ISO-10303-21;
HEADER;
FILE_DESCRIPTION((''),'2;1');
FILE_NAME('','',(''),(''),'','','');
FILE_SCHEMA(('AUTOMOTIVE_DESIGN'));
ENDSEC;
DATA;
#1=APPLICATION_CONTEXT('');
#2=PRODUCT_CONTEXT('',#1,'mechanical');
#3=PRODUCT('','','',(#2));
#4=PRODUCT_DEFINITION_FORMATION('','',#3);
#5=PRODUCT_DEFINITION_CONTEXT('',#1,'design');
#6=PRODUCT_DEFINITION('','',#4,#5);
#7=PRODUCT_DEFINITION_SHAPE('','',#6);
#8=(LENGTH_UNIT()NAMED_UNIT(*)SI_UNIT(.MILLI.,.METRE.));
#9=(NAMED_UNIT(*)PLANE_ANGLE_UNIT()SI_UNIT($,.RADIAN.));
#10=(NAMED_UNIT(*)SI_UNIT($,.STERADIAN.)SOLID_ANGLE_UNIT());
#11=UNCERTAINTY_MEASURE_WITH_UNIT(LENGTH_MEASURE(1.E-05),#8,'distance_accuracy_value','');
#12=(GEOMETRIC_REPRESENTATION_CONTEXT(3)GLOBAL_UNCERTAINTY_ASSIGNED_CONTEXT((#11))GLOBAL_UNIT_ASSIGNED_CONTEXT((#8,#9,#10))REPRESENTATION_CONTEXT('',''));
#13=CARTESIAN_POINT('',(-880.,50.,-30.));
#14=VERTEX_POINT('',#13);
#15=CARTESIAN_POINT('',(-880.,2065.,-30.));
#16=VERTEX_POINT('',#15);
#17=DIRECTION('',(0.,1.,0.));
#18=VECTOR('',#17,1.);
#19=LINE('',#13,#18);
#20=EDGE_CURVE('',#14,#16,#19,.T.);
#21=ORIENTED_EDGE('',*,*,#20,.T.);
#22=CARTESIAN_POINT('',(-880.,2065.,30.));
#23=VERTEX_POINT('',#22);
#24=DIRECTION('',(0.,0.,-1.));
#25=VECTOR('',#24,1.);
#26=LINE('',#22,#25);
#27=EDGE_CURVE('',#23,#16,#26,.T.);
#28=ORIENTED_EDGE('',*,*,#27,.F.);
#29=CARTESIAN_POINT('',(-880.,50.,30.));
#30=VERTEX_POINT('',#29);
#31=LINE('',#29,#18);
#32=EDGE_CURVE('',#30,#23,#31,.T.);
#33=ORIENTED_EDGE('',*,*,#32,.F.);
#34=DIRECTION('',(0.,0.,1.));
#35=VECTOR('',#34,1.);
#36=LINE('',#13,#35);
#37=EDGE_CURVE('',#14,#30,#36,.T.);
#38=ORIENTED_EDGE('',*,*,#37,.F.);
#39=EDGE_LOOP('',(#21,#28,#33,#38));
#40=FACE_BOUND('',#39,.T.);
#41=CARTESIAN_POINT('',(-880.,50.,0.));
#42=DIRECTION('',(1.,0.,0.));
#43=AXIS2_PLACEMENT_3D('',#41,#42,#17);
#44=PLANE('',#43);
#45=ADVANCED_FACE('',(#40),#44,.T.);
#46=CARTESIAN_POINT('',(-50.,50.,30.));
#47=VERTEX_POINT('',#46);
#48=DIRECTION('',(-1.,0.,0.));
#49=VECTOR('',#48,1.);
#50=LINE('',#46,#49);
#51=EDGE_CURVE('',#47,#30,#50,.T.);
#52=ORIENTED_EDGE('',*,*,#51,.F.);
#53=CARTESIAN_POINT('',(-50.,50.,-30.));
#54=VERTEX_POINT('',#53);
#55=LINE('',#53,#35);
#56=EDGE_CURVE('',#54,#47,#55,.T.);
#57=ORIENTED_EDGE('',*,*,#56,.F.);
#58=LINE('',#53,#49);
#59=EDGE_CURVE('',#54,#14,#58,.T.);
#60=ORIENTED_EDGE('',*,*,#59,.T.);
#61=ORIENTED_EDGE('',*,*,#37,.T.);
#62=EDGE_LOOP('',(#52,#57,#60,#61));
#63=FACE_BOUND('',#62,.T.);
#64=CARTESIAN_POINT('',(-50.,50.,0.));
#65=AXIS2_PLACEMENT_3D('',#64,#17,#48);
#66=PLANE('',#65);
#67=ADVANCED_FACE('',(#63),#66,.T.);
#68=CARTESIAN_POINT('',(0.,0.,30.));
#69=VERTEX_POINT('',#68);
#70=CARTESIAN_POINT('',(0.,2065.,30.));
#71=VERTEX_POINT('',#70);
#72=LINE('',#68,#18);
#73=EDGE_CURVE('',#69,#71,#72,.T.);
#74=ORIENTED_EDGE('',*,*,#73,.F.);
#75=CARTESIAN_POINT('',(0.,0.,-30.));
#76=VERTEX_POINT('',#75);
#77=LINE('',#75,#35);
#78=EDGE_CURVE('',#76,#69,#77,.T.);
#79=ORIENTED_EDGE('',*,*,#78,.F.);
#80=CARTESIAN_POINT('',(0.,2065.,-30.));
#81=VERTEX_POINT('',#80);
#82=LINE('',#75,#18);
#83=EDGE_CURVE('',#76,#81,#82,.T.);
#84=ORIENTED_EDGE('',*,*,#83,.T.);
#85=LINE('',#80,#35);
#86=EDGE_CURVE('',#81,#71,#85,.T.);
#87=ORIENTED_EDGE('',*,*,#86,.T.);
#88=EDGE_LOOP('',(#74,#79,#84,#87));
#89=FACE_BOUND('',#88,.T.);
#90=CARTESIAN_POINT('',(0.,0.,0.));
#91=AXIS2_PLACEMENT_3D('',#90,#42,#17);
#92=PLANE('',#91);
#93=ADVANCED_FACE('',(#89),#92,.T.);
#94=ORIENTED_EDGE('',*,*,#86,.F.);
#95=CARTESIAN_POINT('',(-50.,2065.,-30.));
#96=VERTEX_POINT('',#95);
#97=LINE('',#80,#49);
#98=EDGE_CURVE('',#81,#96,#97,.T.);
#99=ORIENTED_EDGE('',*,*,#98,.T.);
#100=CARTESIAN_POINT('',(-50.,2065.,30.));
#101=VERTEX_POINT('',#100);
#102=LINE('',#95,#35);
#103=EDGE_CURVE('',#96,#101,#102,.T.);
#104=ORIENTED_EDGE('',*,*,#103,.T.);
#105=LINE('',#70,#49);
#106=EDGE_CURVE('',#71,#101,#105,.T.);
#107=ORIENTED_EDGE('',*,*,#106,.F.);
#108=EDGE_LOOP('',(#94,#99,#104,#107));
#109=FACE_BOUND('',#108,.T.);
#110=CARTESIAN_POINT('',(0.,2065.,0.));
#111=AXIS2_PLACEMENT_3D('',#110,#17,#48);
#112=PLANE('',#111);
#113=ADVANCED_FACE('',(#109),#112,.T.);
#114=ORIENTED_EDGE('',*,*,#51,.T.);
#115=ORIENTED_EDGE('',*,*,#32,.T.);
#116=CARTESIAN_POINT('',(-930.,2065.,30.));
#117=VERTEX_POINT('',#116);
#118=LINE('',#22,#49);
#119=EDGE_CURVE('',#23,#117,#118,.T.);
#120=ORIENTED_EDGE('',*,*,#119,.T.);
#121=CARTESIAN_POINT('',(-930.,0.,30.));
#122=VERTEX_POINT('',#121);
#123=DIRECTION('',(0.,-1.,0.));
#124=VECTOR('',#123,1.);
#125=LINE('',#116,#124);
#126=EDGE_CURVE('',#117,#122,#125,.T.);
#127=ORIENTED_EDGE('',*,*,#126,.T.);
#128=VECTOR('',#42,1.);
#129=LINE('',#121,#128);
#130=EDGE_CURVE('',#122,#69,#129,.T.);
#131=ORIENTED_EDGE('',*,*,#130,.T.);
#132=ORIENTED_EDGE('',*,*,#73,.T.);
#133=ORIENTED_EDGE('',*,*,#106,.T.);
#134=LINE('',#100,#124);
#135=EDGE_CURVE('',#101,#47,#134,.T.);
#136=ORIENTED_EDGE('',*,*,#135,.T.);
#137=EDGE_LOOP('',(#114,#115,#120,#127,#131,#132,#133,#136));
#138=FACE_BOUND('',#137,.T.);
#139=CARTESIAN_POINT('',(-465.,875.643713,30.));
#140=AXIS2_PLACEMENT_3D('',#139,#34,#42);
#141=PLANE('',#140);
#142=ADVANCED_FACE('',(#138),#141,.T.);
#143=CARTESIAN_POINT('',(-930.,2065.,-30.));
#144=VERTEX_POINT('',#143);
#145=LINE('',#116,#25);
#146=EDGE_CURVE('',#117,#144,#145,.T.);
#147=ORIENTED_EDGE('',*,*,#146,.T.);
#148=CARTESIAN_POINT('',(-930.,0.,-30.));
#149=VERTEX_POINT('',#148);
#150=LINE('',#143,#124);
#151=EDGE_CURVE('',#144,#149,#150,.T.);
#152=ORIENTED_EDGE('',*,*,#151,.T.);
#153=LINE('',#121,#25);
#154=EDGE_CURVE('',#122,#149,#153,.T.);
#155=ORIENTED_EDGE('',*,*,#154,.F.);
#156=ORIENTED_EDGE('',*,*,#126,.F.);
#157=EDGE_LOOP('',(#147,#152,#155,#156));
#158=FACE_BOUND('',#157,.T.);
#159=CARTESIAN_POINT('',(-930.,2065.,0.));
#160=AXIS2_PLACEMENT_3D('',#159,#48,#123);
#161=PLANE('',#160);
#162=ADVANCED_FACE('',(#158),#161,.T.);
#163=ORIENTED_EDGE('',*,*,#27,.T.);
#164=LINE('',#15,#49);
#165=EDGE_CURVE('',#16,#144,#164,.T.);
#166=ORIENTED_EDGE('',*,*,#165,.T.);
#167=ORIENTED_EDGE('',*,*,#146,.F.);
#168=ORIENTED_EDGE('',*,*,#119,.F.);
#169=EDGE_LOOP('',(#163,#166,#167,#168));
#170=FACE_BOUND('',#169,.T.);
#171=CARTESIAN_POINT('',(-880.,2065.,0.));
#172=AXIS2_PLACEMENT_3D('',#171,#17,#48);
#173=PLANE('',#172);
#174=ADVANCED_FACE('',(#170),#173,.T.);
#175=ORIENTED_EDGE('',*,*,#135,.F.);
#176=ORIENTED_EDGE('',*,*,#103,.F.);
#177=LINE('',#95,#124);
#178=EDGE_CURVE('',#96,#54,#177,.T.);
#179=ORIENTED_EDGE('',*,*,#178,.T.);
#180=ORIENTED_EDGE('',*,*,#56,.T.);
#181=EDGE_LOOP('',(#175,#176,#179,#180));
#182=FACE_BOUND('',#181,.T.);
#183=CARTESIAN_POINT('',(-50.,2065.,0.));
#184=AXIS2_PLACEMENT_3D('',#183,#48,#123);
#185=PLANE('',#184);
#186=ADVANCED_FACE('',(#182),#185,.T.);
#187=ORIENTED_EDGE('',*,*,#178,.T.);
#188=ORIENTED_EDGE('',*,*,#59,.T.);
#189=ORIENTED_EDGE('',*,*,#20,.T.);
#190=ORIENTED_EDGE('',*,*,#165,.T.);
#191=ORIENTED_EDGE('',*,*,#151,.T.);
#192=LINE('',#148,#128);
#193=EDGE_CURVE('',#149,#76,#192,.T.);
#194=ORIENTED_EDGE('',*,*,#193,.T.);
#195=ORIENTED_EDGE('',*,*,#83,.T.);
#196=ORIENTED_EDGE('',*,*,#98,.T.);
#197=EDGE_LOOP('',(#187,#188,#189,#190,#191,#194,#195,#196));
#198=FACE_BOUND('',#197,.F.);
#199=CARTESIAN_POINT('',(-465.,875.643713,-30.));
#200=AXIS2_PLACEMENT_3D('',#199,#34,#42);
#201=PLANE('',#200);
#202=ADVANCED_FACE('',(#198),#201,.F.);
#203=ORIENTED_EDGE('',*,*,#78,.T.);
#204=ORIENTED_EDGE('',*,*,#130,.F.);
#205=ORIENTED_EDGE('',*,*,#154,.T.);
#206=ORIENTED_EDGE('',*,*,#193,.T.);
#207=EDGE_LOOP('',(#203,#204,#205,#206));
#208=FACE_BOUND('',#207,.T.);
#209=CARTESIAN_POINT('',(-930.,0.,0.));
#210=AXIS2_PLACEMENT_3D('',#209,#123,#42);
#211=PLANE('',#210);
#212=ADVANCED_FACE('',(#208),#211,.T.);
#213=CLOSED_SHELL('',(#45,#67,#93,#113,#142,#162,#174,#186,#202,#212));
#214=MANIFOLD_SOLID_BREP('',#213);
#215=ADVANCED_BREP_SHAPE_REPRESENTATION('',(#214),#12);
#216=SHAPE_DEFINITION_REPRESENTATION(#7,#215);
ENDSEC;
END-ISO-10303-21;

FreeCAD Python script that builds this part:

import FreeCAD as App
import Part
import Sketcher

doc = App.newDocument("Part")
body = doc.addObject("PartDesign::Body", "Body")

sketch1 = body.newObject("Sketcher::SketchObject", "Sketch")
sketch1.AttachmentSupport = (doc.getObject("XY_Plane"), [""])
sketch1.MapMode = "FlatFace"
sketch1.addGeometry([
    Part.LineSegment(App.Vector(-930, 0, 0), App.Vector(0, 0, 0)),
    Part.LineSegment(App.Vector(0, 0, 0), App.Vector(0, 2065, 0)),
    Part.LineSegment(App.Vector(0, 2065, 0), App.Vector(-50, 2065, 0)),
    Part.LineSegment(App.Vector(-50, 2065, 0), App.Vector(-50, 50, 0)),
    Part.LineSegment(App.Vector(-50, 50, 0), App.Vector(-880, 50, 0)),
    Part.LineSegment(App.Vector(-880, 50, 0), App.Vector(-880, 2065, 0)),
    Part.LineSegment(App.Vector(-880, 2065, 0), App.Vector(-930, 2065, 0)),
    Part.LineSegment(App.Vector(-930, 2065, 0), App.Vector(-930, 0, 0)),
], False)
sketch1.addConstraint([
    Sketcher.Constraint("Coincident", 0, 2, 1, 1),
    Sketcher.Constraint("Coincident", 1, 2, 2, 1),
    Sketcher.Constraint("Coincident", 2, 2, 3, 1),
    Sketcher.Constraint("Coincident", 3, 2, 4, 1),
    Sketcher.Constraint("Coincident", 4, 2, 5, 1),
    Sketcher.Constraint("Coincident", 5, 2, 6, 1),
    Sketcher.Constraint("Coincident", 6, 2, 7, 1),
    Sketcher.Constraint("Coincident", 7, 2, 0, 1),
    Sketcher.Constraint("Horizontal", 0),
    Sketcher.Constraint("Vertical", 1),
    Sketcher.Constraint("Horizontal", 2),
    Sketcher.Constraint("Vertical", 3),
    Sketcher.Constraint("Horizontal", 4),
    Sketcher.Constraint("Vertical", 5),
    Sketcher.Constraint("Horizontal", 6),
    Sketcher.Constraint("Vertical", 7),
    Sketcher.Constraint("Coincident", 0, 2, -1, 1),
    Sketcher.Constraint("Horizontal", 2, 2, 5, 2),
    Sketcher.Constraint("Equal", 2, 6),
    Sketcher.Constraint("DistanceX", 0, 1, 0, 2, 930.0),
    Sketcher.Constraint("DistanceX", 2, 2, 2, 1, 50.0),
    Sketcher.Constraint("DistanceY", 1, 1, 1, 2, 2065.0),
    Sketcher.Constraint("DistanceY", 3, 2, 3, 1, 2015.0),
])
pad1 = body.newObject("PartDesign::Pad", "Pad")
pad1.Profile = sketch1
pad1.Length = 60
pad1.Midplane = True

doc.recompute()
